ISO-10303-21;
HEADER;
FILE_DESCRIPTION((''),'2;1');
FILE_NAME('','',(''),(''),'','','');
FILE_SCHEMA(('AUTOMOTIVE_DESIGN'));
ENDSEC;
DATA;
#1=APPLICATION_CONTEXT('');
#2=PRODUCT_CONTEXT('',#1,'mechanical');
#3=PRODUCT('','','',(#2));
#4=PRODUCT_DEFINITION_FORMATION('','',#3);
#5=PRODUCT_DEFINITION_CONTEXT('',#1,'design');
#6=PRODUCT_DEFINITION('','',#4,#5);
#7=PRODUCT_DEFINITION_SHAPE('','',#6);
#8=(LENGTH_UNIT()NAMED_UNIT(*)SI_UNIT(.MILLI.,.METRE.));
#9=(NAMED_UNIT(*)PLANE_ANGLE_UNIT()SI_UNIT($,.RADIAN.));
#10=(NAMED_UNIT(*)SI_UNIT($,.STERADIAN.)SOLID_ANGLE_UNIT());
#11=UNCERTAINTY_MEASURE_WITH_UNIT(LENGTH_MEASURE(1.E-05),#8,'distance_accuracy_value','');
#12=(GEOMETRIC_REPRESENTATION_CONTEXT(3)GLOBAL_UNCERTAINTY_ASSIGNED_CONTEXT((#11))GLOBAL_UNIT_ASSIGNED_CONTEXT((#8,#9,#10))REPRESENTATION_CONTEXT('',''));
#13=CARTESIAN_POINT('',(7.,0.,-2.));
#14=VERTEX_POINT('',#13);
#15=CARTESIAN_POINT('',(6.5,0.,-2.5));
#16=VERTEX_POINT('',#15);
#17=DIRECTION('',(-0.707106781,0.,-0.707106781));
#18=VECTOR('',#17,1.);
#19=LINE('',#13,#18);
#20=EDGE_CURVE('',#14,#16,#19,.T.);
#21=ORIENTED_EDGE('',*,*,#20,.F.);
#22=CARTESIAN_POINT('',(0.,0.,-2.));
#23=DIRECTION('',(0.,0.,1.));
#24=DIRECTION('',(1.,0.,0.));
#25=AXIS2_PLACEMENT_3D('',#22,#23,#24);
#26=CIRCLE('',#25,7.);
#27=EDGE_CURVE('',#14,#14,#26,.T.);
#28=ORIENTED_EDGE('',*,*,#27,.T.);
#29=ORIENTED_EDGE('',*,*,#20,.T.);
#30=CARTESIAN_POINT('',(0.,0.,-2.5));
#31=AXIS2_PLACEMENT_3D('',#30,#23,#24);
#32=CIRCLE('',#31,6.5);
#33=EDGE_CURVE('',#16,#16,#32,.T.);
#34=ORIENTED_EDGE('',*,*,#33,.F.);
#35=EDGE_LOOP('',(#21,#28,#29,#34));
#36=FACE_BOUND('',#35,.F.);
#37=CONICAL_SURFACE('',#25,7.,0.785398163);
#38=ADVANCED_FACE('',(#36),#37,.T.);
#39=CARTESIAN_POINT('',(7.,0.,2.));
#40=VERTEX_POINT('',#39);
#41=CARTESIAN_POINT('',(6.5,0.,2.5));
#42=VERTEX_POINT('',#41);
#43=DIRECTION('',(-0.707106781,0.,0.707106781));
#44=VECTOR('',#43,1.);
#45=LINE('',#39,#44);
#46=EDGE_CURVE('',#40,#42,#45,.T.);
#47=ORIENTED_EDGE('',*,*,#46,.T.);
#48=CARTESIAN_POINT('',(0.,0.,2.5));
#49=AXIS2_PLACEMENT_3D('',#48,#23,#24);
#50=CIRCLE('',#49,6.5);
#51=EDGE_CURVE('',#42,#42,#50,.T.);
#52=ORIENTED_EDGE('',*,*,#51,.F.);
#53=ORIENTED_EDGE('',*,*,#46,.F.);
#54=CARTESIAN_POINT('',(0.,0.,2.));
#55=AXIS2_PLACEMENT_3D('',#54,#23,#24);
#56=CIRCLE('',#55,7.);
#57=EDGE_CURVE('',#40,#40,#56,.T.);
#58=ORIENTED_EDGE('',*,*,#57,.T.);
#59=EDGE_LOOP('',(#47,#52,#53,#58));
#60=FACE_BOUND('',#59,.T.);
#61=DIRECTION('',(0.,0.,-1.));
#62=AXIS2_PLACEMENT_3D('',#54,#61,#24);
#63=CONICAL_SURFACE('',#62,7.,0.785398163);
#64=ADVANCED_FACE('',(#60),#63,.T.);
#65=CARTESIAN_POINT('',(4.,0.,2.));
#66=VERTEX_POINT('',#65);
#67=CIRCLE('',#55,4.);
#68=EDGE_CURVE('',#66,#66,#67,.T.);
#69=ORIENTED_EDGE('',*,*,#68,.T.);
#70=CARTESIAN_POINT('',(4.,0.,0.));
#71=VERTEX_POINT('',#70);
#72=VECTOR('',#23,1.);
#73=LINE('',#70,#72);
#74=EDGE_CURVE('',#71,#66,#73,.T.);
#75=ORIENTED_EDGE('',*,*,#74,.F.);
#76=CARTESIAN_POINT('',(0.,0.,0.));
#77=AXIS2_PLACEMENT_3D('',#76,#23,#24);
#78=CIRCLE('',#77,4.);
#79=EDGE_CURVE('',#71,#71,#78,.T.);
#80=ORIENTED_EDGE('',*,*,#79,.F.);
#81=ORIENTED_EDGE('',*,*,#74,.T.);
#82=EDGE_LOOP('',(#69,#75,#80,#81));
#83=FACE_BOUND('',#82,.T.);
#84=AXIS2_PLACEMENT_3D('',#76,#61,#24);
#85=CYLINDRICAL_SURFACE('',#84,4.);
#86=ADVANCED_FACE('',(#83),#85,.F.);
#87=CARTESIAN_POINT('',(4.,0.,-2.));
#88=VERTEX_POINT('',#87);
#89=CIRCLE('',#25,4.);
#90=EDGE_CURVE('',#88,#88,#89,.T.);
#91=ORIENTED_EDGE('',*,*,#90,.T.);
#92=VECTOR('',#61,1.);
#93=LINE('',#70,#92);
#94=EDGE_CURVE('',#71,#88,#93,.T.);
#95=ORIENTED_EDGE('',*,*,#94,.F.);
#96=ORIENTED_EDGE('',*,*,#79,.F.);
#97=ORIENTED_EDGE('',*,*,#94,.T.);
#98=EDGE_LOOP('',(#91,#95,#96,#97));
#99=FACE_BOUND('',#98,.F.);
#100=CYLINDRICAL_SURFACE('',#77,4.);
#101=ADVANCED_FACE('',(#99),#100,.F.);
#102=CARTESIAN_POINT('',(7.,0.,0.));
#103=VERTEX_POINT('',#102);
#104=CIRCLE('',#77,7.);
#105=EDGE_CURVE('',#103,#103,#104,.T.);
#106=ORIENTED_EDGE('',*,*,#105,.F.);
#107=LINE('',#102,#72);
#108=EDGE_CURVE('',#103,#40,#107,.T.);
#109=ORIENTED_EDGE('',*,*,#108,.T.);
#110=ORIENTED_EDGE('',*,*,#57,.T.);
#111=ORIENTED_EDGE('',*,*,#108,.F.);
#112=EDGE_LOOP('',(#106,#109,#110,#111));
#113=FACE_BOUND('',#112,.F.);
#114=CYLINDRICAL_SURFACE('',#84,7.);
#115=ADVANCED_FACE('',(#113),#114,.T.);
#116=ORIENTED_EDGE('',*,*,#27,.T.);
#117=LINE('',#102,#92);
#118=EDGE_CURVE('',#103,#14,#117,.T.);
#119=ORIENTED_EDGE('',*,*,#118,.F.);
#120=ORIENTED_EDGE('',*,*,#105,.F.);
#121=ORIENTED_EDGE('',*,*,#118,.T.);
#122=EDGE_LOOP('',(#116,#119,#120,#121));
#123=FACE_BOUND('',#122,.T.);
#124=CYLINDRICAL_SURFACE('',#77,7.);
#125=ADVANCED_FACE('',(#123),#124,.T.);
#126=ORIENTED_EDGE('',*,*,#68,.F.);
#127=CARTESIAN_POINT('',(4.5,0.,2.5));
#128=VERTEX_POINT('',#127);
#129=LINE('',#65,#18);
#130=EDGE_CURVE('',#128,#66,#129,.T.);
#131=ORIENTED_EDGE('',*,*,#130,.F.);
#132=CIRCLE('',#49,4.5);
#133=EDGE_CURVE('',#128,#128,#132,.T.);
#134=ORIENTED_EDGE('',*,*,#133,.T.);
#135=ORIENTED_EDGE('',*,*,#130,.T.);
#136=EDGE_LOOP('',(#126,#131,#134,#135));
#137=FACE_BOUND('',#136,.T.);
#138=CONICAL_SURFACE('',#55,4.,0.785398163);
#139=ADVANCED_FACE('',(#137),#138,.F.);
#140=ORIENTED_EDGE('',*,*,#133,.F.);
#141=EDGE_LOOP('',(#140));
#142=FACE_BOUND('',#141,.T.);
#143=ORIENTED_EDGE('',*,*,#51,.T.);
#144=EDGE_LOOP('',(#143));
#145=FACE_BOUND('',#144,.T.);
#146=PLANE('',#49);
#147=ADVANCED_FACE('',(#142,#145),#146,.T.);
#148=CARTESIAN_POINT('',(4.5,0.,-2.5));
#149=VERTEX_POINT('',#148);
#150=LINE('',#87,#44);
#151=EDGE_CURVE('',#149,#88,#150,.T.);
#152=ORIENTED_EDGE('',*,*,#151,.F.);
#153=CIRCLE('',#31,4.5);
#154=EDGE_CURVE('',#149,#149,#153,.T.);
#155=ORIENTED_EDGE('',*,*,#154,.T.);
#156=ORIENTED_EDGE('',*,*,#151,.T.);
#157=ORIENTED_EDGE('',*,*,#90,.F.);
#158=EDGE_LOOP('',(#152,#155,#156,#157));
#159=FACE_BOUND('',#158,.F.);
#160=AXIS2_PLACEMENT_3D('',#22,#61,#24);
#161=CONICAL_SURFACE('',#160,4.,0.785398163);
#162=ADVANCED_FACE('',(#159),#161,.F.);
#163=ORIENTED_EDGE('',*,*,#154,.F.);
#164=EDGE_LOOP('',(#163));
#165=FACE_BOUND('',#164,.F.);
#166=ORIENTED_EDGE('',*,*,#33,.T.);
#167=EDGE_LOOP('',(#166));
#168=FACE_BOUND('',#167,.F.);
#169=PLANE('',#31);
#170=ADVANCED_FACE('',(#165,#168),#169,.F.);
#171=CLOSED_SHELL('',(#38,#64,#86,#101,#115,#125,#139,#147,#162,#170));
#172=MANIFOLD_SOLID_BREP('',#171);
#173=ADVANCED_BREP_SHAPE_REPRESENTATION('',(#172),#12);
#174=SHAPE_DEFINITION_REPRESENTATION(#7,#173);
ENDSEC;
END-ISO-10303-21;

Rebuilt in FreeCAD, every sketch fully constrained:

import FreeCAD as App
import Part
import Sketcher

V = App.Vector


def edges_at(feature, points):
    """Names of the edges that pass closest to the given points."""
    edges = feature.Shape.Edges
    near = lambda p: min(range(len(edges)), key=lambda i: edges[i].distToShape(Part.Vertex(*p))[0])
    return sorted({f"Edge{near(p) + 1}" for p in points})

doc = App.newDocument("Part")
body = doc.addObject("PartDesign::Body", "Body")

sketch1 = doc.addObject("Sketcher::SketchObject", "Sketch")
body.addObject(sketch1)
sketch1.AttachmentSupport = (doc.XY_Plane, [""])
sketch1.MapMode = "FlatFace"
sketch1.addGeometry(Part.Circle(V(0, 0, 0), V(0, 0, 1), 7), False)
sketch1.addGeometry(Part.Circle(V(0, 0, 0), V(0, 0, 1), 4), False)
sketch1.addConstraint(Sketcher.Constraint("Coincident", 0, 3, -1, 1))
sketch1.addConstraint(Sketcher.Constraint("Coincident", 1, 3, -1, 1))
sketch1.addConstraint(Sketcher.Constraint("Diameter", 0, 14.0))
sketch1.addConstraint(Sketcher.Constraint("Diameter", 1, 8.0))
pad1 = doc.addObject("PartDesign::Pad", "Pad")
body.addObject(pad1)
pad1.Profile = sketch1
pad1.Length = 5
pad1.Midplane = True
doc.recompute()

chamfer = doc.addObject("PartDesign::Chamfer", "Chamfer")
body.addObject(chamfer)
chamfer.Base = (pad1, edges_at(pad1, [
    (-7, 0, 2.5),
    (-4, 0, 2.5),
    (-7, 0, -2.5),
    (-4, 0, -2.5),
]))
chamfer.Size = 0.5

doc.recompute()
